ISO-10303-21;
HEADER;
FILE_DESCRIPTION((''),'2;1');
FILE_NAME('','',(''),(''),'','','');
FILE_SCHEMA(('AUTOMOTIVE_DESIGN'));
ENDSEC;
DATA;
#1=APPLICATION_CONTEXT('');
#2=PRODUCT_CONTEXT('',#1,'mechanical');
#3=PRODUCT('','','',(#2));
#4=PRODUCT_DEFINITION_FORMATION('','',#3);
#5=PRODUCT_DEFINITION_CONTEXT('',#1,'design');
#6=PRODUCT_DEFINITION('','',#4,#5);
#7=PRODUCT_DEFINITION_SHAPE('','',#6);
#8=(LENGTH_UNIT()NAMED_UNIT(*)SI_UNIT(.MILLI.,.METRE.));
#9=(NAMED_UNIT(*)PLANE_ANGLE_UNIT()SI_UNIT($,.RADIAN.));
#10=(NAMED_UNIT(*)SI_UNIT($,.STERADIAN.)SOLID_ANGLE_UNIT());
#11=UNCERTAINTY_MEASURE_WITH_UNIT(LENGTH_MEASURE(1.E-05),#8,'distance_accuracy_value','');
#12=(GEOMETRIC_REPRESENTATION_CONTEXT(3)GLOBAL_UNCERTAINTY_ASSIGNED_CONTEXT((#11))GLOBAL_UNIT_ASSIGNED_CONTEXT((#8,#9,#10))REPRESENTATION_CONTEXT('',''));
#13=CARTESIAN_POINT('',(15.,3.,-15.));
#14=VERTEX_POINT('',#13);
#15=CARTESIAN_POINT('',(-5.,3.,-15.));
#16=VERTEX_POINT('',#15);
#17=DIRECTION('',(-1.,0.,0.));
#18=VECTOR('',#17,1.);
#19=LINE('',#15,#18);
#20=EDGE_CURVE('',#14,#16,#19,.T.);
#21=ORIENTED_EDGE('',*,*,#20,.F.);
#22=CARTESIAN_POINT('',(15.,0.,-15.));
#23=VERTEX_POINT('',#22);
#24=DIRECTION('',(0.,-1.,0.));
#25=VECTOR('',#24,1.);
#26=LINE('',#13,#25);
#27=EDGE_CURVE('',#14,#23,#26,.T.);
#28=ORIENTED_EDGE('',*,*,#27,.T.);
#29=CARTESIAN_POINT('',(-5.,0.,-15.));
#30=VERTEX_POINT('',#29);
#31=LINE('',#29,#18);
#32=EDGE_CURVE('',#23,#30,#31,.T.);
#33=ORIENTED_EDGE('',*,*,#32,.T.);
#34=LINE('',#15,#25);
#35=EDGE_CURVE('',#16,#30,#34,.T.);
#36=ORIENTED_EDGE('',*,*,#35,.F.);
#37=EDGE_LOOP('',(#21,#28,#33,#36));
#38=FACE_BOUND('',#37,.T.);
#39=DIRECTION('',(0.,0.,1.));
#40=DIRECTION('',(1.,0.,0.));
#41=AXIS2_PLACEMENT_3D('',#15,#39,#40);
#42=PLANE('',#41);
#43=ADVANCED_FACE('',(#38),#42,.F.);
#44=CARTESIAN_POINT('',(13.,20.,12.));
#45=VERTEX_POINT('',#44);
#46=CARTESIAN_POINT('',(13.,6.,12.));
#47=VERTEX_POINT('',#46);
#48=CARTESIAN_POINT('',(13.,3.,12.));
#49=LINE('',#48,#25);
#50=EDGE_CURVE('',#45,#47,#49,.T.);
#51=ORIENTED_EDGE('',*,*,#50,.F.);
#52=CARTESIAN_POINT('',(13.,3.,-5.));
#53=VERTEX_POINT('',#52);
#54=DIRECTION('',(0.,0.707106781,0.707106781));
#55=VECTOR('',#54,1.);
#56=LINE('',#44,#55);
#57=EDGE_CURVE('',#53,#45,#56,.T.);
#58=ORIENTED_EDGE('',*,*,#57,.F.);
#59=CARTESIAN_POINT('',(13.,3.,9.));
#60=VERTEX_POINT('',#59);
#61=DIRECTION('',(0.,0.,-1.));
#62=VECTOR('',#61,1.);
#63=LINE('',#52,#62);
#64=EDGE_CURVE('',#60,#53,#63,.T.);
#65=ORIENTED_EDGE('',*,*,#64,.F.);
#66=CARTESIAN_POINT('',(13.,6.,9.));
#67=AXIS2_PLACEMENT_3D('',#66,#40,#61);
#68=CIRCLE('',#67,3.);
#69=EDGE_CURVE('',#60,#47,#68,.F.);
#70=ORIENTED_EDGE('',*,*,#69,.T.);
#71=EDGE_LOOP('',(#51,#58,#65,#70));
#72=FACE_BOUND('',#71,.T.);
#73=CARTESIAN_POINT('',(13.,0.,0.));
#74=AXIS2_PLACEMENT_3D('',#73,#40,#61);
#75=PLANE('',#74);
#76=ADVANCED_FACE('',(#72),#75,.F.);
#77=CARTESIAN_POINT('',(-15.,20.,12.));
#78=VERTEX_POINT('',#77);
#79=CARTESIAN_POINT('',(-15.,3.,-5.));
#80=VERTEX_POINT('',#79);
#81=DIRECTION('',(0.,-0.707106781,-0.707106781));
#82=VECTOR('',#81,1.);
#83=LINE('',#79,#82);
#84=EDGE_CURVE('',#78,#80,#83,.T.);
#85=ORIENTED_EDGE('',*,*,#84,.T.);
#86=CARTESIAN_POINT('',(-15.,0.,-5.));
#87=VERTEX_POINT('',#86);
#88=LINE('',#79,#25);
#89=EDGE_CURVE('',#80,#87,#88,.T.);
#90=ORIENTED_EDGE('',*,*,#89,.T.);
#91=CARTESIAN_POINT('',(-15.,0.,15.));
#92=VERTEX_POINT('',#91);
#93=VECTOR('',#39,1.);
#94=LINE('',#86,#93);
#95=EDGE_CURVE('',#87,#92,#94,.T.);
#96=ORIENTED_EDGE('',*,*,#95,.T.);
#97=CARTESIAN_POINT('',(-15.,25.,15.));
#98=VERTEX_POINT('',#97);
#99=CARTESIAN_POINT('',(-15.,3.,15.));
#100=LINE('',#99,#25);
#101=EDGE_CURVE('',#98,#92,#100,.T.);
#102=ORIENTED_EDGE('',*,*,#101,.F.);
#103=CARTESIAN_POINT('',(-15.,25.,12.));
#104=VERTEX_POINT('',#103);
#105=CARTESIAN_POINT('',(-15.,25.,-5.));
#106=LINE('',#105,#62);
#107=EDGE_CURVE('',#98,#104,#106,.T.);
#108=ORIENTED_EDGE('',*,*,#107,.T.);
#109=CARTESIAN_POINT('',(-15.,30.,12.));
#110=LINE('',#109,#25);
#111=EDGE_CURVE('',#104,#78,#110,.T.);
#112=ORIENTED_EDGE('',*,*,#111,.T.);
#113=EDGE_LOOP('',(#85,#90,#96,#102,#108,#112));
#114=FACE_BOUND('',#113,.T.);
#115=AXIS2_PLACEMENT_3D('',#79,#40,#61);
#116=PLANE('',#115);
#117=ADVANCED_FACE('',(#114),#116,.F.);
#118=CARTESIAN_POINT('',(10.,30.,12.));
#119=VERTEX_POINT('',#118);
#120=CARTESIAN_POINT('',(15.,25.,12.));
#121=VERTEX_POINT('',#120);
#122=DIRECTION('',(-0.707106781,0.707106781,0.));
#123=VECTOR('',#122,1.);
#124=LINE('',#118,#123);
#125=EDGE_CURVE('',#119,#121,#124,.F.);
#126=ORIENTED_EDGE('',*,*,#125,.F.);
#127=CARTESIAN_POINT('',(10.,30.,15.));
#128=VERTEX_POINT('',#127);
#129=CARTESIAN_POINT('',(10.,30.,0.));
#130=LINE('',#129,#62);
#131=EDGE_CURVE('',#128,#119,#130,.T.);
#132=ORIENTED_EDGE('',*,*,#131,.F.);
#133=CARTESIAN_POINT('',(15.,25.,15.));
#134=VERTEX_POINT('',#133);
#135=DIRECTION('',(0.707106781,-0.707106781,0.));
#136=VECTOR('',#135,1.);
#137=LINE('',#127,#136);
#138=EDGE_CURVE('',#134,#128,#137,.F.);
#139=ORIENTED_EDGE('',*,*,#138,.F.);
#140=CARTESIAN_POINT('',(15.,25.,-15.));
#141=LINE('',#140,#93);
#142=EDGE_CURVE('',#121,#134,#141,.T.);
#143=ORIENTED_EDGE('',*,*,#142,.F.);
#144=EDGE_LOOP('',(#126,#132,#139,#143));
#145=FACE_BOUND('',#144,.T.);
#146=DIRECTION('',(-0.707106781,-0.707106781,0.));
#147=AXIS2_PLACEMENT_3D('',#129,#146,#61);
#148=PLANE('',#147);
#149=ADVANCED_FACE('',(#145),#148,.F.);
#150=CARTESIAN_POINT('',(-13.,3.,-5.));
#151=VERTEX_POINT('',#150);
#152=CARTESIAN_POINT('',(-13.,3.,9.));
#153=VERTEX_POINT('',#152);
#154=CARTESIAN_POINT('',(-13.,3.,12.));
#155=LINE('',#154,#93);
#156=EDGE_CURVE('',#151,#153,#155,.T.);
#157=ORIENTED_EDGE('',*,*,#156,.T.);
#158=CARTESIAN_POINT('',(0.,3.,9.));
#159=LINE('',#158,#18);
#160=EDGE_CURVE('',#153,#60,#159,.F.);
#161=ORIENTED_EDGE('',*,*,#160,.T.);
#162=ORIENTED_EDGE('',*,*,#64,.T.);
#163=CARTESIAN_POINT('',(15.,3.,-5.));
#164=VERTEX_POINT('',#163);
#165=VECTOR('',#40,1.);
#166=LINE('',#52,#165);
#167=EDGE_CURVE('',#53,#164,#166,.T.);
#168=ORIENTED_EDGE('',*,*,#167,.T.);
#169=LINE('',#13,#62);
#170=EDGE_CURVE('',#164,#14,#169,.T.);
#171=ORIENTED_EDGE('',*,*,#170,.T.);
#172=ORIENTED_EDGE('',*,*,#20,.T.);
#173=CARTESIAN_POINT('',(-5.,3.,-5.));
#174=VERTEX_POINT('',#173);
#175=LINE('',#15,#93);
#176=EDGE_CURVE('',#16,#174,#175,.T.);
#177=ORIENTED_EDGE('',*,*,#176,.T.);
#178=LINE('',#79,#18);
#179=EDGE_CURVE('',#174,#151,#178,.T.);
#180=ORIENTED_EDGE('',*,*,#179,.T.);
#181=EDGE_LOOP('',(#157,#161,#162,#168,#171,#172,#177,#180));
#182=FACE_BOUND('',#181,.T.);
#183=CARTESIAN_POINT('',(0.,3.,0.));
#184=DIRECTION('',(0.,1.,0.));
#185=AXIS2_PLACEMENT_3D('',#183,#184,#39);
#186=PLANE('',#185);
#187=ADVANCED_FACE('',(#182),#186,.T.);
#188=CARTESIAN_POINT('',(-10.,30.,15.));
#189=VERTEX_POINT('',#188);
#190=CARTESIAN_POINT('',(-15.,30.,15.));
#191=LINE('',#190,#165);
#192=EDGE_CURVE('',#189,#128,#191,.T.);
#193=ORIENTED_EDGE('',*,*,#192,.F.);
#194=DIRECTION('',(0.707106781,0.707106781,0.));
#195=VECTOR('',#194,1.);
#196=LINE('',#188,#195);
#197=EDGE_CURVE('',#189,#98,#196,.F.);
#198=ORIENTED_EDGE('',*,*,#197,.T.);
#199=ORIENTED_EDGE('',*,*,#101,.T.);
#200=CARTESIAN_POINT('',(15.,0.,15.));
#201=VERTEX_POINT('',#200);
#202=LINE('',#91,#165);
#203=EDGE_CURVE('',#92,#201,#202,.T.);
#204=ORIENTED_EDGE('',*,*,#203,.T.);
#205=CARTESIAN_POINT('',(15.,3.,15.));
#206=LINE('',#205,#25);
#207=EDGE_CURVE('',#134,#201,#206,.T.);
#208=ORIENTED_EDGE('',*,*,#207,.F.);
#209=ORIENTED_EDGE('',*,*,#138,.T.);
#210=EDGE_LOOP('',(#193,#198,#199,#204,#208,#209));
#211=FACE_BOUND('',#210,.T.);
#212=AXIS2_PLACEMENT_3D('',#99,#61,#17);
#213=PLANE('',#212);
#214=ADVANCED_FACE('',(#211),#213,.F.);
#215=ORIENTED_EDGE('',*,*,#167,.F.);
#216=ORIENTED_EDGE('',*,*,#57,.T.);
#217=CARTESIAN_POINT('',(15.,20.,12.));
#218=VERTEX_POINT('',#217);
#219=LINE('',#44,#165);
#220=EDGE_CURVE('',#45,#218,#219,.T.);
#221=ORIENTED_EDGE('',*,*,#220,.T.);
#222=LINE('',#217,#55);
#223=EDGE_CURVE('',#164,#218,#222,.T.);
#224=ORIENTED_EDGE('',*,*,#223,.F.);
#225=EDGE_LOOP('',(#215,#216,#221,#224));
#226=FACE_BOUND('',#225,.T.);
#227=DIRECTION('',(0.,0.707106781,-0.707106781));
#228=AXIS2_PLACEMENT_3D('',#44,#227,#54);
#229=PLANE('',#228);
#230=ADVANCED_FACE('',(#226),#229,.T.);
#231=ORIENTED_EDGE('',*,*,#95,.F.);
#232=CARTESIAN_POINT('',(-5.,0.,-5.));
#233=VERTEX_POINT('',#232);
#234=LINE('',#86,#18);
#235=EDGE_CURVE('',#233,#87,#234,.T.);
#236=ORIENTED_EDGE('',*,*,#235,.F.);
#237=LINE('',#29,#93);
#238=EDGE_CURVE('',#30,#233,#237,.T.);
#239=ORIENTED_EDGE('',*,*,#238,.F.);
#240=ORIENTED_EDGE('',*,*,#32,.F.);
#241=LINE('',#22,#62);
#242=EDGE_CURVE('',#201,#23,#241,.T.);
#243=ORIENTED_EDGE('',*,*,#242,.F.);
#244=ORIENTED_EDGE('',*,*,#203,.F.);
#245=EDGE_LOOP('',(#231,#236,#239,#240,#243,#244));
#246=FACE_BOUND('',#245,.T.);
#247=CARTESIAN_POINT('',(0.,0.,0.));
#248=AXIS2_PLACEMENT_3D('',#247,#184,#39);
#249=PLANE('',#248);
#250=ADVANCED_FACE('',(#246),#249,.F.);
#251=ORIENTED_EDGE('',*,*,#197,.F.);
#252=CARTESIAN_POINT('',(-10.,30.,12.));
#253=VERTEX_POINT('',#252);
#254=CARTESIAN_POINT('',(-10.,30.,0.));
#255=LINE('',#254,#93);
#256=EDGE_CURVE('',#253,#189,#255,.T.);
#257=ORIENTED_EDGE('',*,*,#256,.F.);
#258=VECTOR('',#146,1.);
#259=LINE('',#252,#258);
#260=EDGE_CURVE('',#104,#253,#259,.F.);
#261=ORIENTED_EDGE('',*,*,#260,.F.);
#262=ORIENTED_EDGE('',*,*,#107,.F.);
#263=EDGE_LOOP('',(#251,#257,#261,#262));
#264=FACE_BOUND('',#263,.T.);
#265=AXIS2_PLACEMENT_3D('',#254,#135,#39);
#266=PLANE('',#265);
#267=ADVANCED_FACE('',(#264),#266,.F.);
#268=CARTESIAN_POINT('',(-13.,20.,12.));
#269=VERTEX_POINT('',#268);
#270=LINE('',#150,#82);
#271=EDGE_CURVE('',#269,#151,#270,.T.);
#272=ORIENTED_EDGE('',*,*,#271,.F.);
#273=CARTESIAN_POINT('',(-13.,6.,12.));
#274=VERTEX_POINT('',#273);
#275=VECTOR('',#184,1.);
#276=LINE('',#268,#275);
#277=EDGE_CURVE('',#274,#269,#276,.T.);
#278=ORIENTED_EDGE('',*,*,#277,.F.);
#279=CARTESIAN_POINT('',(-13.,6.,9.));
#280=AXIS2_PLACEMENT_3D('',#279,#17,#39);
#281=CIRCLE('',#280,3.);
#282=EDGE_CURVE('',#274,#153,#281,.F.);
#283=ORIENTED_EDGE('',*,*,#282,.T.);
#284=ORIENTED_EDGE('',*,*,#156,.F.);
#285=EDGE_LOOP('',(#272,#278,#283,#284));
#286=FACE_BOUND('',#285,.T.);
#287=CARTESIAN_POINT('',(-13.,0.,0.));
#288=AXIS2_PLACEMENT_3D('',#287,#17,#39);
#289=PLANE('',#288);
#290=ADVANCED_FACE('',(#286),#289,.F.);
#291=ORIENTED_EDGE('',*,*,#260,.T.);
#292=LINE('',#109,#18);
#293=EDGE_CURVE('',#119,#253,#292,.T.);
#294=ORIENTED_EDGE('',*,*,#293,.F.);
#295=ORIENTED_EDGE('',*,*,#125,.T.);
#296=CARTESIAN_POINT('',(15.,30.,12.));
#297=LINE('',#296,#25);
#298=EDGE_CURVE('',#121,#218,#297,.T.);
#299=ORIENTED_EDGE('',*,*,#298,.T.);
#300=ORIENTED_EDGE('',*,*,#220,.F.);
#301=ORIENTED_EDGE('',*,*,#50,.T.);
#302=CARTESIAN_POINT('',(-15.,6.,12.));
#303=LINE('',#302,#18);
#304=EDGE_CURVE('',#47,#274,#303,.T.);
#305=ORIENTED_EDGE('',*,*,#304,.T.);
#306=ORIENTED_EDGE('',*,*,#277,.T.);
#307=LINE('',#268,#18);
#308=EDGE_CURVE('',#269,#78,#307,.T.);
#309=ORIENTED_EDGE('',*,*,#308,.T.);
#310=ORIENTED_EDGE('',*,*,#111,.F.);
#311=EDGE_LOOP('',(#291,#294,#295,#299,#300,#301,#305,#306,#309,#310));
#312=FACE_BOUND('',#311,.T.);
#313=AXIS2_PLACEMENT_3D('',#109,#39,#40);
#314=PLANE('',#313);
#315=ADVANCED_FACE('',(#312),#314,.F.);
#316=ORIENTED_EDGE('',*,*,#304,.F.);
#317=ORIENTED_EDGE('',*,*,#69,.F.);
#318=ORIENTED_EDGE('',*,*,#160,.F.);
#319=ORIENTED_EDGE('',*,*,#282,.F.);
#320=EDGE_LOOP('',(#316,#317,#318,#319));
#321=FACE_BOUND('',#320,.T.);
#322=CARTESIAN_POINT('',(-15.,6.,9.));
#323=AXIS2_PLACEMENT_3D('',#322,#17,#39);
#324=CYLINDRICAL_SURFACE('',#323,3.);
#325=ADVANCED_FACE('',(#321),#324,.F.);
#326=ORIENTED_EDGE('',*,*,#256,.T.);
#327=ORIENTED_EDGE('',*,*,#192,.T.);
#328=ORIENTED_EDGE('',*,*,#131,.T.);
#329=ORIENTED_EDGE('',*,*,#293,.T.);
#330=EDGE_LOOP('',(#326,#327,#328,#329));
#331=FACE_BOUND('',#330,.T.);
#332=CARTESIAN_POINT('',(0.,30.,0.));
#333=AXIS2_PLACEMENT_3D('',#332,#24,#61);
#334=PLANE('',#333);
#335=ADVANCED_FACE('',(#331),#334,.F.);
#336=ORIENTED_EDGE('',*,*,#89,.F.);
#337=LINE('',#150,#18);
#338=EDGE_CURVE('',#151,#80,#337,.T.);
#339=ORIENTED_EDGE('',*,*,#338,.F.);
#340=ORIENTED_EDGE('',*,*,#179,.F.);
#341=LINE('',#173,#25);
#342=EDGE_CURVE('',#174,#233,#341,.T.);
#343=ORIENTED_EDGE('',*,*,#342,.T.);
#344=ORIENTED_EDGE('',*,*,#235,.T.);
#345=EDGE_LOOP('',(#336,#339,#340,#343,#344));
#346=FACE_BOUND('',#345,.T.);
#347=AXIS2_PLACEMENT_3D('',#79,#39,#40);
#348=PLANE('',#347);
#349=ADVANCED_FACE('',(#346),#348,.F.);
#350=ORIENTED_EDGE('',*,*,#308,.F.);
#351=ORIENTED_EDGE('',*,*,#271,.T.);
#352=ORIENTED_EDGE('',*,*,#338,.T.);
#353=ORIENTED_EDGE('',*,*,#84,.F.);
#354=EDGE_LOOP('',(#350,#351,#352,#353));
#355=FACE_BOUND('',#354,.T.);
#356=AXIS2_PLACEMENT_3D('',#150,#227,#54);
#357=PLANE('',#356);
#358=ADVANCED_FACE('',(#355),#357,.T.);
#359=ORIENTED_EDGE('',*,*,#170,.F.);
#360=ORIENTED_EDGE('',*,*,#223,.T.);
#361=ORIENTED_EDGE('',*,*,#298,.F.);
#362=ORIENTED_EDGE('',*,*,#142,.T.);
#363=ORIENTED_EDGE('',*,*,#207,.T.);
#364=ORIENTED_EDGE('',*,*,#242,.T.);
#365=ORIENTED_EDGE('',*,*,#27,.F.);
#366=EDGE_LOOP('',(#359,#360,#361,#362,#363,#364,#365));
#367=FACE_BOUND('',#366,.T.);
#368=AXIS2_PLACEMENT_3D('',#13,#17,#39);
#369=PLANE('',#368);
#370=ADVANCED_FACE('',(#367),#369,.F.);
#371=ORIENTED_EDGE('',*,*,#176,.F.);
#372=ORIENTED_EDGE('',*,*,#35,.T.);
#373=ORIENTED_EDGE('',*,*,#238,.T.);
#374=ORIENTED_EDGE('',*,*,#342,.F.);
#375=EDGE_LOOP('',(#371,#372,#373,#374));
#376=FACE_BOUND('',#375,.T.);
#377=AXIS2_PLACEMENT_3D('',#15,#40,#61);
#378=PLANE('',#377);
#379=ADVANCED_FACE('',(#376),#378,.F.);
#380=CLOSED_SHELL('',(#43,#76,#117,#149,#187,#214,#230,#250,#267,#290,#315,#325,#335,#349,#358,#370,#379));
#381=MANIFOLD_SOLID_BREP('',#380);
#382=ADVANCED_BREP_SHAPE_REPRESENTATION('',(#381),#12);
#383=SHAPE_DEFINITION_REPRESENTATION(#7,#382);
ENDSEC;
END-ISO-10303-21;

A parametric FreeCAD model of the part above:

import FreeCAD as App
import Part
import Sketcher
from FreeCAD import Vector
Q = App.Units.Quantity


def edges_at(feature, points):
    """Names of the edges that pass closest to the given points."""
    edges = feature.Shape.Edges
    near = lambda p: min(range(len(edges)), key=lambda i: edges[i].distToShape(Part.Vertex(*p))[0])
    return sorted({f"Edge{near(p) + 1}" for p in points})


def add_polygon(sketch, points):
    """Adds a closed chain of lines whose ends are joined by coincident constraints."""
    first, n = sketch.GeometryCount, len(points)
    for a, b in zip(points, points[1:] + points[:1]):
        sketch.addGeometry(Part.LineSegment(App.Vector(*a, 0), App.Vector(*b, 0)), False)
    for i in range(n):
        sketch.addConstraint(Sketcher.Constraint("Coincident", first + i, 2, first + (i + 1) % n, 1))

doc = App.newDocument("Part")
body = doc.addObject("PartDesign::Body", "Body")

# Sketch on XZ plane
sketch1 = body.newObject("Sketcher::SketchObject", "Sketch")
sketch1.AttachmentSupport = (doc.getObject("XZ_Plane"), [""])
sketch1.MapMode = "FlatFace"
add_polygon(sketch1, [(15, -15), (-5, -15), (-5, -5), (-15, -5), (-15, 15), (15, 15)])  # lines 0-5
sketch1.addConstraint([
    Sketcher.Constraint("Horizontal", 0),
    Sketcher.Constraint("Vertical", 1),
    Sketcher.Constraint("Horizontal", 2),
    Sketcher.Constraint("Vertical", 3),
    Sketcher.Constraint("Horizontal", 4),
    Sketcher.Constraint("Vertical", 5),
    Sketcher.Constraint("Symmetric", 3, 2, 5, 2, -1, 1),
    Sketcher.Constraint("Equal", 2, 1),
    Sketcher.Constraint("Equal", 0, 3),
    Sketcher.Constraint("DistanceX", 0, 2, 0, 1, Q("20 mm")),
    Sketcher.Constraint("DistanceX", 2, 2, 2, 1, Q("10 mm")),
])
pad1 = body.newObject("PartDesign::Pad", "Pad")
pad1.Profile = sketch1
pad1.Length = 3
pad1.Reversed = True

# Sketch on XZ plane
sketch2 = body.newObject("Sketcher::SketchObject", "Sketch001")
sketch2.AttachmentSupport = (doc.getObject("XZ_Plane"), [""])
sketch2.MapMode = "FlatFace"
sketch2.AttachmentOffset = App.Placement(Vector(0, 0, -3), App.Rotation())
add_polygon(sketch2, [(-15, 12), (-15, 15), (15, 15), (15, 12)])  # lines 0-3
sketch2.addConstraint([
    Sketcher.Constraint("Vertical", 0),
    Sketcher.Constraint("Horizontal", 1),
    Sketcher.Constraint("Vertical", 2),
    Sketcher.Constraint("Horizontal", 3),
    Sketcher.Constraint("DistanceX", 1, 1, 1, 2, Q("30 mm")),
    Sketcher.Constraint("DistanceY", 0, 1, 0, 2, Q("3 mm")),
    Sketcher.Constraint("DistanceX", 0, 2, -1, 1, Q("15 mm")),
    Sketcher.Constraint("DistanceY", -1, 1, 0, 2, Q("15 mm")),
])
pad2 = body.newObject("PartDesign::Pad", "Pad001")
pad2.Profile = sketch2
pad2.Length = 27
pad2.Reversed = True

# Sketch on YZ plane
sketch3 = body.newObject("Sketcher::SketchObject", "Sketch002")
sketch3.AttachmentSupport = (doc.getObject("YZ_Plane"), [""])
sketch3.MapMode = "FlatFace"
sketch3.AttachmentOffset = App.Placement(Vector(0, 0, -15), App.Rotation())
add_polygon(sketch3, [(20, 12), (3, -5), (3, 12)])  # lines 0-2
sketch3.addConstraint([
    Sketcher.Constraint("Vertical", 1),
    Sketcher.Constraint("Horizontal", 2),
    Sketcher.Constraint("Equal", 2, 1),
    Sketcher.Constraint("DistanceX", 2, 1, 2, 2, Q("17 mm")),
    Sketcher.Constraint("DistanceX", -1, 1, 0, 2, Q("3 mm")),
    Sketcher.Constraint("DistanceY", 0, 2, -1, 1, Q("5 mm")),
])
pad3 = body.newObject("PartDesign::Pad", "Pad002")
pad3.Profile = sketch3
pad3.Length = 2

# Sketch on YZ plane
sketch4 = body.newObject("Sketcher::SketchObject", "Sketch003")
sketch4.AttachmentSupport = (doc.getObject("YZ_Plane"), [""])
sketch4.MapMode = "FlatFace"
sketch4.AttachmentOffset = App.Placement(Vector(0, 0, 15), App.Rotation())
add_polygon(sketch4, [(3, -5), (20, 12), (3, 12)])  # lines 0-2
sketch4.addConstraint([
    Sketcher.Constraint("Horizontal", 1),
    Sketcher.Constraint("Vertical", 2),
    Sketcher.Constraint("Equal", 1, 2),
    Sketcher.Constraint("DistanceX", 1, 2, 1, 1, Q("17 mm")),
    Sketcher.Constraint("DistanceX", -1, 1, 0, 2, Q("20 mm")),
    Sketcher.Constraint("DistanceY", -1, 1, 0, 2, Q("12 mm")),
])
pad4 = body.newObject("PartDesign::Pad", "Pad003")
pad4.Profile = sketch4
pad4.Length = 2
pad4.Reversed = True
doc.recompute()

chamfer = body.newObject("PartDesign::Chamfer", "Chamfer")
chamfer.Base = (pad4, edges_at(pad4, [(-15, 30, 13.5), (15, 30, 13.5)]))
chamfer.Size = 5
doc.recompute()

fillet = body.newObject("PartDesign::Fillet", "Fillet")
fillet.Base = (chamfer, edges_at(chamfer, [(0, 3, 12)]))
fillet.Radius = 3

doc.recompute()
